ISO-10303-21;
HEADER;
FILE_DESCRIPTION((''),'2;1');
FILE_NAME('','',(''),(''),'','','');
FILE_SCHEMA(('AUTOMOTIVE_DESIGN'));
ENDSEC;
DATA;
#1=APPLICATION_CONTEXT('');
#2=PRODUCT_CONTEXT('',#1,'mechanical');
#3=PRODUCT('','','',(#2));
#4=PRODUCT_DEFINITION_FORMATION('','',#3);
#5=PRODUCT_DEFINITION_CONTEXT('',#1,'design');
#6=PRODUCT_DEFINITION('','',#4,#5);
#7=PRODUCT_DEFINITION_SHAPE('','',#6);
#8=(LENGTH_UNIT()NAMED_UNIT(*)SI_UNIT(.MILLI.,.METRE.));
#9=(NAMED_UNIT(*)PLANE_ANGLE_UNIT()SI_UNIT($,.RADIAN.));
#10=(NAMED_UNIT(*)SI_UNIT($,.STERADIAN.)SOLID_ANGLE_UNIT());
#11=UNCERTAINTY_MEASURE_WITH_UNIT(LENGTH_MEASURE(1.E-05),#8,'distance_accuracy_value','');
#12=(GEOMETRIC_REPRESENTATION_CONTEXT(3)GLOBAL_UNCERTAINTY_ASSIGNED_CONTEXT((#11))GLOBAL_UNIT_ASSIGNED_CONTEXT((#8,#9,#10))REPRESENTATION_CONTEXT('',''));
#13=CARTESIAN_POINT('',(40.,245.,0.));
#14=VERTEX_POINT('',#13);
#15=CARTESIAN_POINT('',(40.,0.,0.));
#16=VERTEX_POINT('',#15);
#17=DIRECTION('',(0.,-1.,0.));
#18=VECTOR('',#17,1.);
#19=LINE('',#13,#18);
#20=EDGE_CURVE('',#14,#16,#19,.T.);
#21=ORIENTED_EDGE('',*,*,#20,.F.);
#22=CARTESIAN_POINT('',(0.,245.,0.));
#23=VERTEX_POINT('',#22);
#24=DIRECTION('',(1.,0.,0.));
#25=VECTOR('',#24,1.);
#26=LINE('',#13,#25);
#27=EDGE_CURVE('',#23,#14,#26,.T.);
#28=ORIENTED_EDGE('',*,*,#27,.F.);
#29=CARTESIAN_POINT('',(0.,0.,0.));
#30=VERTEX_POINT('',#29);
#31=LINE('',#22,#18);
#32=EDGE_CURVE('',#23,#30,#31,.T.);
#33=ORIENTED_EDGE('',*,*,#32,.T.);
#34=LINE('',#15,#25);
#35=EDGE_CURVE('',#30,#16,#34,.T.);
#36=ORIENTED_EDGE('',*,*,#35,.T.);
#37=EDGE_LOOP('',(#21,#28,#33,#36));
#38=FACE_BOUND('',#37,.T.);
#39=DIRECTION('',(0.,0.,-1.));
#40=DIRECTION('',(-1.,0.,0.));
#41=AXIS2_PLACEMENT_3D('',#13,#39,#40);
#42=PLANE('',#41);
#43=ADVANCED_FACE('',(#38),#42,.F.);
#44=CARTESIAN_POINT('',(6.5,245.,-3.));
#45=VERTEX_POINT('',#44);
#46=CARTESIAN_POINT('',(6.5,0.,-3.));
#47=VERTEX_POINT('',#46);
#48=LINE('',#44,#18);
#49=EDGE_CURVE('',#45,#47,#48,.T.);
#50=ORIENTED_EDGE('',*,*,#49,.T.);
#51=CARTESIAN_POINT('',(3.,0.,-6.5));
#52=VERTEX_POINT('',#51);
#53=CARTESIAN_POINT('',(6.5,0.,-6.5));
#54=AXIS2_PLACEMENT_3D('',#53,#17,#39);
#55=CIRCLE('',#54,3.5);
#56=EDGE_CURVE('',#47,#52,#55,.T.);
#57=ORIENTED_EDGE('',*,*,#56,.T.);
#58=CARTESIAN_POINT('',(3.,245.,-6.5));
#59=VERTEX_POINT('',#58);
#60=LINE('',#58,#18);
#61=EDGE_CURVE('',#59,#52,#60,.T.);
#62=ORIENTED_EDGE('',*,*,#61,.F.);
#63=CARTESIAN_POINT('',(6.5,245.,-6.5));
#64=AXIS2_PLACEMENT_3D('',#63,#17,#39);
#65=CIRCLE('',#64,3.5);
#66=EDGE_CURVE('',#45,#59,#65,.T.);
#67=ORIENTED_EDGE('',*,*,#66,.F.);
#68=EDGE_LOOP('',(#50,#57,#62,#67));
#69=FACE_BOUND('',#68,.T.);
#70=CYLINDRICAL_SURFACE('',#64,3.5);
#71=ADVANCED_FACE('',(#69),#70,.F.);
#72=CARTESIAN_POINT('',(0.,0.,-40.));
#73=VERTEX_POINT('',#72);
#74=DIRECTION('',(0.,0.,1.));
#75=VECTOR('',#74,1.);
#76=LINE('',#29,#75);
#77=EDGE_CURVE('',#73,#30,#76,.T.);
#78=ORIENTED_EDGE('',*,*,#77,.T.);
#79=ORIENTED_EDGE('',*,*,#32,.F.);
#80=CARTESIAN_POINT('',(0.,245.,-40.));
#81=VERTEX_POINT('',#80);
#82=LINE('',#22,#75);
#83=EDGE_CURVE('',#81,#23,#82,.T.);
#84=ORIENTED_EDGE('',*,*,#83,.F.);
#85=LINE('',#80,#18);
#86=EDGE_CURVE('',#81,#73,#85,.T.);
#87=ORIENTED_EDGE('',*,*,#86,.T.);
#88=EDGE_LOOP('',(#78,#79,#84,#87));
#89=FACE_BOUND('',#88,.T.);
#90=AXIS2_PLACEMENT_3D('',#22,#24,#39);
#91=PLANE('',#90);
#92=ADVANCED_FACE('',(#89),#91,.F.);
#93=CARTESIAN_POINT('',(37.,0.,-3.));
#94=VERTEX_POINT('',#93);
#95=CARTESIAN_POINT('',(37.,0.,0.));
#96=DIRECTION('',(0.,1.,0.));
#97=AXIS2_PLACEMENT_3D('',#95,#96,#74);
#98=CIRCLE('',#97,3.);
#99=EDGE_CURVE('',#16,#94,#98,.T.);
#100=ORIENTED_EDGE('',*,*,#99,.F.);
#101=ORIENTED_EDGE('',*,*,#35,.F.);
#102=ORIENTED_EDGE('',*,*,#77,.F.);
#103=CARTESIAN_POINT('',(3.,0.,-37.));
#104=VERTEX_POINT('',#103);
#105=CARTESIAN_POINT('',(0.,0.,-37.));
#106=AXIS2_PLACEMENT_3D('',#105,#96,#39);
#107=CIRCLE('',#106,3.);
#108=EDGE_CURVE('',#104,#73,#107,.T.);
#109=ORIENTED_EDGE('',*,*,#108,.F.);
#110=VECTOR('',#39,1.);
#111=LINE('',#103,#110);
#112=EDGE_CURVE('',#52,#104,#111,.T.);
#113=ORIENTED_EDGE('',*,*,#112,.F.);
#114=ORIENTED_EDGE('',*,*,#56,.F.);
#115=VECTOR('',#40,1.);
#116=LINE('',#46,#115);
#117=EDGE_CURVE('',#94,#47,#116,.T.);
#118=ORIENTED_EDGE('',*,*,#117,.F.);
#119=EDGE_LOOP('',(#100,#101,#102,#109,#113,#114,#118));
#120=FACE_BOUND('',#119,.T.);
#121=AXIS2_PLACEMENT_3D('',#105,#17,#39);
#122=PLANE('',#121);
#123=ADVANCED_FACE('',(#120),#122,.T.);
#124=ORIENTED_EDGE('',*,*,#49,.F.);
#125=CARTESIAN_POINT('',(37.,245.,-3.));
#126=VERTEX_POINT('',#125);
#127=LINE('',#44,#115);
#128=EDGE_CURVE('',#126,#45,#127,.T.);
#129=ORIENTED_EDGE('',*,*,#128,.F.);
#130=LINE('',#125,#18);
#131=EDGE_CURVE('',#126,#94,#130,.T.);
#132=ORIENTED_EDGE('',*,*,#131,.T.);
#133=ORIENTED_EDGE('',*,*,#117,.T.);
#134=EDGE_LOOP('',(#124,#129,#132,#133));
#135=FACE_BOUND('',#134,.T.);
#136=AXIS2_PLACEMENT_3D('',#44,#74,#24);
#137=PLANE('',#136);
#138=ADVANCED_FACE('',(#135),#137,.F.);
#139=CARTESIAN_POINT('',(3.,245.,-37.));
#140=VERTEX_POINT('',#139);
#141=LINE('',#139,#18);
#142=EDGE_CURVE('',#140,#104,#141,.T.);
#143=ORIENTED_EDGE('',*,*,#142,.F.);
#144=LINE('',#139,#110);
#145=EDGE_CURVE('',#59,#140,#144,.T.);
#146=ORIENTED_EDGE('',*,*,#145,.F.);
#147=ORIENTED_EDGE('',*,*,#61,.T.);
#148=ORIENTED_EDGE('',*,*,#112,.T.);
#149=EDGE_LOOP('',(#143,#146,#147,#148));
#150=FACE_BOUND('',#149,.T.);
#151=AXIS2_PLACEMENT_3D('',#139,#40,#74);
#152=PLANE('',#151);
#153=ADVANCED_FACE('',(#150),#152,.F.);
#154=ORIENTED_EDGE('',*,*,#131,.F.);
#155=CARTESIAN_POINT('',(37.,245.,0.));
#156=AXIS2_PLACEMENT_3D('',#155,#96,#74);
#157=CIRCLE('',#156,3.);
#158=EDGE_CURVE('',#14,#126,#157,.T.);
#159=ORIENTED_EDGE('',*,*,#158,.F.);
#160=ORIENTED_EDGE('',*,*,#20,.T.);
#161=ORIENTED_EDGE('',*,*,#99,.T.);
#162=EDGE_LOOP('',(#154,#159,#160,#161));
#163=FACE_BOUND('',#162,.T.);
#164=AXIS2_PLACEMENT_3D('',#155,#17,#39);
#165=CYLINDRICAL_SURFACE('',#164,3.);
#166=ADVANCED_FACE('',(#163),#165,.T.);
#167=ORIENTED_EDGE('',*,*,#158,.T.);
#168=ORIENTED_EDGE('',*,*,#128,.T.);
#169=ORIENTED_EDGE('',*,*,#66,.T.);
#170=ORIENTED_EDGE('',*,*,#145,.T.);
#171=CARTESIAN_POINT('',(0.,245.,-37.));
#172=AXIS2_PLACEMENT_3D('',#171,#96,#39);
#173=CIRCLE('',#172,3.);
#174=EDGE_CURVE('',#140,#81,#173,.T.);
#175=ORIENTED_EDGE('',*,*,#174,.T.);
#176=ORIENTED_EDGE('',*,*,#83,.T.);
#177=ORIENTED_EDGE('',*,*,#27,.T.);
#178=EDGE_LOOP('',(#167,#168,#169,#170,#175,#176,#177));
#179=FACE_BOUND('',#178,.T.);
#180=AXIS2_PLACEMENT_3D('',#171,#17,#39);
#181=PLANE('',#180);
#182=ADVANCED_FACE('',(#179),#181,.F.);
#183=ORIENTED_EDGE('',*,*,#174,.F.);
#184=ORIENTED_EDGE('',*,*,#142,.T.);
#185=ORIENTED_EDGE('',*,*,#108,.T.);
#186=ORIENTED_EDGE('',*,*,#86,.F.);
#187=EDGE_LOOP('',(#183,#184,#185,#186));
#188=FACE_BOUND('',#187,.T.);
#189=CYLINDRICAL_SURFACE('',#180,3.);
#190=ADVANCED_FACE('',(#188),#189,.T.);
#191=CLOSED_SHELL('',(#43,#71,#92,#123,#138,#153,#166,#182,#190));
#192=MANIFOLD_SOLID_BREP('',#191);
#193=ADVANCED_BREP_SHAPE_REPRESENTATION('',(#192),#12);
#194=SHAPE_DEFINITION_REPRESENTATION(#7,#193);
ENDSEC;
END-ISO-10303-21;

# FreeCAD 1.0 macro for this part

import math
import FreeCAD as App
import Part
import Sketcher

V = App.Vector

doc = App.newDocument("Part")
body = doc.addObject("PartDesign::Body", "Body")

# Sketch on XZ plane
sketch1 = body.newObject("Sketcher::SketchObject", "Sketch")
sketch1.AttachmentSupport = (doc.getObject("XZ_Plane"), [""])
sketch1.MapMode = "FlatFace"
sketch1.addGeometry(Part.LineSegment(V(0, -40, 0), V(0, 0, 0)), False)
sketch1.addGeometry(Part.LineSegment(V(0, 0, 0), V(40, 0, 0)), False)
sketch1.addGeometry(Part.ArcOfCircle(Part.Circle(V(37, 0, 0), V(0, 0, 1), 3), math.radians(-90), math.radians(0)), False)
sketch1.addGeometry(Part.LineSegment(V(37, -3, 0), V(6.5, -3, 0)), False)
sketch1.addGeometry(Part.ArcOfCircle(Part.Circle(V(6.5, -6.5, 0), V(0, 0, 1), 3.5), math.radians(90), math.radians(180)), False)
sketch1.addGeometry(Part.LineSegment(V(3, -6.5, 0), V(3, -37, 0)), False)
sketch1.addGeometry(Part.ArcOfCircle(Part.Circle(V(0, -37, 0), V(0, 0, 1), 3), math.radians(-90), math.radians(0)), False)
sketch1.addConstraint(Sketcher.Constraint("Coincident", 0, 2, 1, 1))
sketch1.addConstraint(Sketcher.Constraint("Coincident", 1, 2, 2, 2))
sketch1.addConstraint(Sketcher.Constraint("Tangent", 2, 1, 3, 1))
sketch1.addConstraint(Sketcher.Constraint("Tangent", 3, 2, 4, 1))
sketch1.addConstraint(Sketcher.Constraint("Tangent", 4, 2, 5, 1))
sketch1.addConstraint(Sketcher.Constraint("Tangent", 5, 2, 6, 2))
sketch1.addConstraint(Sketcher.Constraint("Coincident", 6, 1, 0, 1))
sketch1.addConstraint(Sketcher.Constraint("Vertical", 0))
sketch1.addConstraint(Sketcher.Constraint("Horizontal", 1))
sketch1.addConstraint(Sketcher.Constraint("Horizontal", 3))
sketch1.addConstraint(Sketcher.Constraint("Vertical", 5))
sketch1.addConstraint(Sketcher.Constraint("Coincident", 0, 2, -1, 1))
sketch1.addConstraint(Sketcher.Constraint("Equal", 2, 6))
sketch1.addConstraint(Sketcher.Constraint("PointOnObject", 2, 3, -1))
sketch1.addConstraint(Sketcher.Constraint("PointOnObject", 6, 3, -2))
sketch1.addConstraint(Sketcher.Constraint("Equal", 1, 0))
sketch1.addConstraint(Sketcher.Constraint("Radius", 2, 3.0))
sketch1.addConstraint(Sketcher.Constraint("Radius", 4, 3.5))
sketch1.addConstraint(Sketcher.Constraint("DistanceX", 1, 1, 1, 2, 40.0))
pad1 = body.newObject("PartDesign::Pad", "Pad")
pad1.Profile = sketch1
pad1.Length = 245
pad1.Reversed = True

doc.recompute()
